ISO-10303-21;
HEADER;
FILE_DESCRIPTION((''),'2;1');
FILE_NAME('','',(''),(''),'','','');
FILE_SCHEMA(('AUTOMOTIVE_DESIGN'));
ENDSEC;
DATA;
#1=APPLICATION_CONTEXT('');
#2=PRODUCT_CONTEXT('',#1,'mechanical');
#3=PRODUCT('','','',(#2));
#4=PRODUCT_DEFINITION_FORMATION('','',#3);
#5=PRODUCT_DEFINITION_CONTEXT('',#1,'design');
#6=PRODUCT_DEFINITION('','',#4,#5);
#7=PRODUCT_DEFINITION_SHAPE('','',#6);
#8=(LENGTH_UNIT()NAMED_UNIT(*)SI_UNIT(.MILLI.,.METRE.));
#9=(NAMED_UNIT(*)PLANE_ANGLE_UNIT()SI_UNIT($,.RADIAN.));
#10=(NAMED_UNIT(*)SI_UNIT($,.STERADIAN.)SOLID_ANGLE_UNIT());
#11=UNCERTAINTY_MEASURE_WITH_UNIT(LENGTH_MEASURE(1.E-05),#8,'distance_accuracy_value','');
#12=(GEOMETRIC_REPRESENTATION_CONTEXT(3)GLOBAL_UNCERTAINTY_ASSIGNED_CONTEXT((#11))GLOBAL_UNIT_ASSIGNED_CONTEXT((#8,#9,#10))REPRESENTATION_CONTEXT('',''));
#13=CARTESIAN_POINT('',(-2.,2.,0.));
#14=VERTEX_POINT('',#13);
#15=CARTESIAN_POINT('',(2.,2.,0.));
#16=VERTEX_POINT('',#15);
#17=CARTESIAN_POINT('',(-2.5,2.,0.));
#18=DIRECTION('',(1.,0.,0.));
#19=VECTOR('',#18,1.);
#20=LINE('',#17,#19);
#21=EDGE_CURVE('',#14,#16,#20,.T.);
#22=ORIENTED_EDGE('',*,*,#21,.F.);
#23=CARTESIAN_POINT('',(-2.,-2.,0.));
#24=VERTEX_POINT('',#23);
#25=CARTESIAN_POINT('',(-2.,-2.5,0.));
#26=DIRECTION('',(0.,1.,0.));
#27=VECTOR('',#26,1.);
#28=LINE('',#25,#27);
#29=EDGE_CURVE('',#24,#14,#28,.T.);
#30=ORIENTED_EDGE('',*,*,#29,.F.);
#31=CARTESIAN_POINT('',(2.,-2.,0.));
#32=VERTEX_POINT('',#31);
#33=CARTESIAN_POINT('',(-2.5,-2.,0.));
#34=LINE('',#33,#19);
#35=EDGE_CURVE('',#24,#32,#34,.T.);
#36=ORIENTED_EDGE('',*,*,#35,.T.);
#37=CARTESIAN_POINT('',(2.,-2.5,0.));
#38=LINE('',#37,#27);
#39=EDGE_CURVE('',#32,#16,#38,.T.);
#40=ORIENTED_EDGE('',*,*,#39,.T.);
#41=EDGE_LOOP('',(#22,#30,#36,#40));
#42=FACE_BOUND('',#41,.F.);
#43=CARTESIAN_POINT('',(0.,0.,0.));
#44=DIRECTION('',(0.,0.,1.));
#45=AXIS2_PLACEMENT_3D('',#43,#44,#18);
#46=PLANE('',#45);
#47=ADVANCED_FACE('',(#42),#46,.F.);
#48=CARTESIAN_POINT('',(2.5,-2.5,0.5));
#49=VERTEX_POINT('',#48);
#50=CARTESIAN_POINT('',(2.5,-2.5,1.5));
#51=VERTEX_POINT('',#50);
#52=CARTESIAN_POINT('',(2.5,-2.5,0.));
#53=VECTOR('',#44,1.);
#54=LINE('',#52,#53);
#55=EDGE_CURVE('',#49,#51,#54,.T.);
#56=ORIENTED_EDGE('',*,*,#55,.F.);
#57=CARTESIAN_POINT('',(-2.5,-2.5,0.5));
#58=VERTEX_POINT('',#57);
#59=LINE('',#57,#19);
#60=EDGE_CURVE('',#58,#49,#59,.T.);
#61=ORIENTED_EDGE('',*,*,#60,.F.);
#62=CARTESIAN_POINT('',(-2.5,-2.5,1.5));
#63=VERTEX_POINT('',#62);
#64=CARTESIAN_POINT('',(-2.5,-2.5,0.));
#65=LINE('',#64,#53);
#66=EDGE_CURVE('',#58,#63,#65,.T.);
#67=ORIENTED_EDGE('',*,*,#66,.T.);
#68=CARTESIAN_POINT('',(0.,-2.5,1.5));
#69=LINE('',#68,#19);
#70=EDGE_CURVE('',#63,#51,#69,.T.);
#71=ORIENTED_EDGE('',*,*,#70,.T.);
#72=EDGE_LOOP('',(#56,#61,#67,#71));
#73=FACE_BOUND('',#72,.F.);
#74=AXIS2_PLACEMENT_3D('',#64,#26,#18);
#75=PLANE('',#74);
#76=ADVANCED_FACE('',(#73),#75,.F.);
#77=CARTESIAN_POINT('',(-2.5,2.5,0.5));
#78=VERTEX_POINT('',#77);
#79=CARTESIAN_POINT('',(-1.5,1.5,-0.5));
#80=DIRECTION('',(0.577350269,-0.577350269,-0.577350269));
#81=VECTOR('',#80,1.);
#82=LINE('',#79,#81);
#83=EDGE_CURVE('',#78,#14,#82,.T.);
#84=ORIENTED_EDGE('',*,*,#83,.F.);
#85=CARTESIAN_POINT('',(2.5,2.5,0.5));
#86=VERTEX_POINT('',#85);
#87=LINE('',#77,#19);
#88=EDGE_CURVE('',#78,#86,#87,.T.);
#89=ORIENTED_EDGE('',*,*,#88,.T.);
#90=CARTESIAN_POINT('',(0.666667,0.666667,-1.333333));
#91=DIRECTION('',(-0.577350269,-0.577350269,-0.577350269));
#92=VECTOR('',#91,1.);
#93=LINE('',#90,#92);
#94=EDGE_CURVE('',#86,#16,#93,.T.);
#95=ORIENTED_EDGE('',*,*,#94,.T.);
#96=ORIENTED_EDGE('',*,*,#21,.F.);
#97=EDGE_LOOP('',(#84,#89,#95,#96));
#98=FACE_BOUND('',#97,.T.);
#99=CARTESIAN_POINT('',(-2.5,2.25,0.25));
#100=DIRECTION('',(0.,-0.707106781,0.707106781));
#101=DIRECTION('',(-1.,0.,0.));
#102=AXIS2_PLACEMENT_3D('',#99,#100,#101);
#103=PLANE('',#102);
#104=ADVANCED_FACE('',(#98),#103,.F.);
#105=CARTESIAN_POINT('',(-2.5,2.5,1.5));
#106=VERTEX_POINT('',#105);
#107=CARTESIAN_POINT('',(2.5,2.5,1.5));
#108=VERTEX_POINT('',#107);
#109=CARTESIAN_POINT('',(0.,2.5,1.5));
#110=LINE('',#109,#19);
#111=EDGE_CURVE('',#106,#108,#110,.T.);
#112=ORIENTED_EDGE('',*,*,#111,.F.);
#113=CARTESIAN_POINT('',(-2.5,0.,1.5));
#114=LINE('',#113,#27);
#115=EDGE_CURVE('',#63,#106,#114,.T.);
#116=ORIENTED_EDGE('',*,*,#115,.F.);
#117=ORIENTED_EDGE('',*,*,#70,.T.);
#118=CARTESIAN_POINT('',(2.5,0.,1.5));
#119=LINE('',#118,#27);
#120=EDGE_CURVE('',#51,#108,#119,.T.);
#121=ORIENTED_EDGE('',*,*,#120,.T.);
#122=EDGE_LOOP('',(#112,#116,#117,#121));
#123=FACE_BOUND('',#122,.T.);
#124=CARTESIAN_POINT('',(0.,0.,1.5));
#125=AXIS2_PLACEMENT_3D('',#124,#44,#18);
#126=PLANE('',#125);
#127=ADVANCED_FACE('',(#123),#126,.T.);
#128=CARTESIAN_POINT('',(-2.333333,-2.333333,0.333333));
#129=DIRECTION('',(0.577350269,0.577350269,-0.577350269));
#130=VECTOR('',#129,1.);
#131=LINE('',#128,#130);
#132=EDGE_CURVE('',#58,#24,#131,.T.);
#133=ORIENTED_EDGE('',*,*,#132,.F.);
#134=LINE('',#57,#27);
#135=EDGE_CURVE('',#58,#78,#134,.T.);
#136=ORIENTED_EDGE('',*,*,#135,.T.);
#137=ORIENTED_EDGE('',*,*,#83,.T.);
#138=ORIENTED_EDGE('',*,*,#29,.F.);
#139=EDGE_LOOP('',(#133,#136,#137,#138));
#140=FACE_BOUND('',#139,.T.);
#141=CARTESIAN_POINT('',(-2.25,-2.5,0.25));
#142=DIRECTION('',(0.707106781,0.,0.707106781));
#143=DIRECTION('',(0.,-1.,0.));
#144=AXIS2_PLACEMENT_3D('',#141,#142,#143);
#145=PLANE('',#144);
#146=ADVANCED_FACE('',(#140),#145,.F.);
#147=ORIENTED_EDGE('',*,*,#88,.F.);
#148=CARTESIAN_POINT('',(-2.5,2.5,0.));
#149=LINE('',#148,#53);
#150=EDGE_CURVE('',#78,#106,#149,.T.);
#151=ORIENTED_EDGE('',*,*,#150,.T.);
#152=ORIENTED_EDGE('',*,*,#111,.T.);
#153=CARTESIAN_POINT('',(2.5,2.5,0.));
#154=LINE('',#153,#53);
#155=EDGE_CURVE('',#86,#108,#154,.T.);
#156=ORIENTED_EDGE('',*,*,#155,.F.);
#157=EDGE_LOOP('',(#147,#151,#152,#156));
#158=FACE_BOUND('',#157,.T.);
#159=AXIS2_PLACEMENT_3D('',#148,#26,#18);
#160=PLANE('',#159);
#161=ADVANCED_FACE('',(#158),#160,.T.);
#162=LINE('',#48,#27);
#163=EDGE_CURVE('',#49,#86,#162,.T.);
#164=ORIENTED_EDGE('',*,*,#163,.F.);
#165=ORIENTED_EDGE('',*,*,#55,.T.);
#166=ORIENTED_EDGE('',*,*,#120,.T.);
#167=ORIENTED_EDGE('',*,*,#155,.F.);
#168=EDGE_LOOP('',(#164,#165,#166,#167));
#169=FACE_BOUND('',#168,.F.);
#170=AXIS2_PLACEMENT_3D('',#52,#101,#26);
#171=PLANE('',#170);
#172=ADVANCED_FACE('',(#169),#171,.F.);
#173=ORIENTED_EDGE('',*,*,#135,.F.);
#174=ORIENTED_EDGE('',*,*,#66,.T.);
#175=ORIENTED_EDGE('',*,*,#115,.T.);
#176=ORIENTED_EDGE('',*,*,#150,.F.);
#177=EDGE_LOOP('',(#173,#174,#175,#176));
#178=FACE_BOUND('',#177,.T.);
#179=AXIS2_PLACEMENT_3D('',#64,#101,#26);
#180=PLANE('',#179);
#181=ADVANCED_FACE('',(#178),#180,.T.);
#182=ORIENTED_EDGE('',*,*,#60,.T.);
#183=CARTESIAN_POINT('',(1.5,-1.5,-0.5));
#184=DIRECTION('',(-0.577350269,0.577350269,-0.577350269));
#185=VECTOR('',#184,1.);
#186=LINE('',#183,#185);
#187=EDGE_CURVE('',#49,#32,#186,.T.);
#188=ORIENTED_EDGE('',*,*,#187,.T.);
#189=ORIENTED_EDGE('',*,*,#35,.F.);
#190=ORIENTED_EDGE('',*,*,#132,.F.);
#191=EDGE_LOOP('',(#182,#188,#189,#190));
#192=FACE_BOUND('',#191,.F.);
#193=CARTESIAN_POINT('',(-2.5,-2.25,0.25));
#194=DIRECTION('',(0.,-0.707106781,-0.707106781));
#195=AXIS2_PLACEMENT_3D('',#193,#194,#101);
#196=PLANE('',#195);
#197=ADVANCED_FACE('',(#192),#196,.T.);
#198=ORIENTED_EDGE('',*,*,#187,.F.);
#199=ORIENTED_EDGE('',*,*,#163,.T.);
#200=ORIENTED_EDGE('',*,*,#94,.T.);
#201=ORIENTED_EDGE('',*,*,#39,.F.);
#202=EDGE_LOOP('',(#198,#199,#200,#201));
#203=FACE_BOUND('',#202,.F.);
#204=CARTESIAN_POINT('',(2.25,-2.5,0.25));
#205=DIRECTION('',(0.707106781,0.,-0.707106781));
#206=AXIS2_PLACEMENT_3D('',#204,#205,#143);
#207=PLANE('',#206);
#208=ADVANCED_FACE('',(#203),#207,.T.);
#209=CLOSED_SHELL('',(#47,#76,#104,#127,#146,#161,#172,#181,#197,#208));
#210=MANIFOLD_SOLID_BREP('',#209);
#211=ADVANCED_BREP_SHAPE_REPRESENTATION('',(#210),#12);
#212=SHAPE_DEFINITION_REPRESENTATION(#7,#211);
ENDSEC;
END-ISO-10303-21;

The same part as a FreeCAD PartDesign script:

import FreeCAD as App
import Part
import Sketcher
Q = App.Units.Quantity


def edges_at(feature, points):
    """Names of the edges that pass closest to the given points."""
    edges = feature.Shape.Edges
    near = lambda p: min(range(len(edges)), key=lambda i: edges[i].distToShape(Part.Vertex(*p))[0])
    return sorted({f"Edge{near(p) + 1}" for p in points})

doc = App.newDocument("Part")
body = doc.addObject("PartDesign::Body", "Body")

sketch1 = doc.addObject("Sketcher::SketchObject", "Sketch")
body.addObject(sketch1)
sketch1.AttachmentSupport = (doc.XY_Plane, [""])
sketch1.MapMode = "FlatFace"
sketch1.addGeometry(Part.LineSegment(App.Vector(-2, 2, 0), App.Vector(-2, -2, 0)), False)
sketch1.addGeometry(Part.LineSegment(App.Vector(-2, -2, 0), App.Vector(2, -2, 0)), False)
sketch1.addGeometry(Part.LineSegment(App.Vector(2, -2, 0), App.Vector(2, 2, 0)), False)
sketch1.addGeometry(Part.LineSegment(App.Vector(2, 2, 0), App.Vector(-2, 2, 0)), False)
sketch1.addConstraint(Sketcher.Constraint("Coincident", 0, 2, 1, 1))
sketch1.addConstraint(Sketcher.Constraint("Coincident", 1, 2, 2, 1))
sketch1.addConstraint(Sketcher.Constraint("Coincident", 2, 2, 3, 1))
sketch1.addConstraint(Sketcher.Constraint("Coincident", 3, 2, 0, 1))
sketch1.addConstraint(Sketcher.Constraint("Vertical", 0))
sketch1.addConstraint(Sketcher.Constraint("Horizontal", 1))
sketch1.addConstraint(Sketcher.Constraint("Vertical", 2))
sketch1.addConstraint(Sketcher.Constraint("Horizontal", 3))
sketch1.addConstraint(Sketcher.Constraint("Symmetric", 0, 2, 2, 2, -1, 1))
sketch1.addConstraint(Sketcher.Constraint("Equal", 3, 0))
sketch1.addConstraint(Sketcher.Constraint("DistanceX", 1, 1, 1, 2, Q("5 mm")))
pad1 = doc.addObject("PartDesign::Pad", "Pad")
body.addObject(pad1)
pad1.Profile = sketch1
pad1.Length = 1.5
doc.recompute()

chamfer = doc.addObject("PartDesign::Chamfer", "Chamfer")
body.addObject(chamfer)
chamfer.Base = (pad1, edges_at(pad1, [
    (-2.5, 0, 0),
    (0, -2.5, 0),
    (2.5, 0, 0),
    (0, 2.5, 0),
]))
chamfer.Size = 0.5

doc.recompute()
